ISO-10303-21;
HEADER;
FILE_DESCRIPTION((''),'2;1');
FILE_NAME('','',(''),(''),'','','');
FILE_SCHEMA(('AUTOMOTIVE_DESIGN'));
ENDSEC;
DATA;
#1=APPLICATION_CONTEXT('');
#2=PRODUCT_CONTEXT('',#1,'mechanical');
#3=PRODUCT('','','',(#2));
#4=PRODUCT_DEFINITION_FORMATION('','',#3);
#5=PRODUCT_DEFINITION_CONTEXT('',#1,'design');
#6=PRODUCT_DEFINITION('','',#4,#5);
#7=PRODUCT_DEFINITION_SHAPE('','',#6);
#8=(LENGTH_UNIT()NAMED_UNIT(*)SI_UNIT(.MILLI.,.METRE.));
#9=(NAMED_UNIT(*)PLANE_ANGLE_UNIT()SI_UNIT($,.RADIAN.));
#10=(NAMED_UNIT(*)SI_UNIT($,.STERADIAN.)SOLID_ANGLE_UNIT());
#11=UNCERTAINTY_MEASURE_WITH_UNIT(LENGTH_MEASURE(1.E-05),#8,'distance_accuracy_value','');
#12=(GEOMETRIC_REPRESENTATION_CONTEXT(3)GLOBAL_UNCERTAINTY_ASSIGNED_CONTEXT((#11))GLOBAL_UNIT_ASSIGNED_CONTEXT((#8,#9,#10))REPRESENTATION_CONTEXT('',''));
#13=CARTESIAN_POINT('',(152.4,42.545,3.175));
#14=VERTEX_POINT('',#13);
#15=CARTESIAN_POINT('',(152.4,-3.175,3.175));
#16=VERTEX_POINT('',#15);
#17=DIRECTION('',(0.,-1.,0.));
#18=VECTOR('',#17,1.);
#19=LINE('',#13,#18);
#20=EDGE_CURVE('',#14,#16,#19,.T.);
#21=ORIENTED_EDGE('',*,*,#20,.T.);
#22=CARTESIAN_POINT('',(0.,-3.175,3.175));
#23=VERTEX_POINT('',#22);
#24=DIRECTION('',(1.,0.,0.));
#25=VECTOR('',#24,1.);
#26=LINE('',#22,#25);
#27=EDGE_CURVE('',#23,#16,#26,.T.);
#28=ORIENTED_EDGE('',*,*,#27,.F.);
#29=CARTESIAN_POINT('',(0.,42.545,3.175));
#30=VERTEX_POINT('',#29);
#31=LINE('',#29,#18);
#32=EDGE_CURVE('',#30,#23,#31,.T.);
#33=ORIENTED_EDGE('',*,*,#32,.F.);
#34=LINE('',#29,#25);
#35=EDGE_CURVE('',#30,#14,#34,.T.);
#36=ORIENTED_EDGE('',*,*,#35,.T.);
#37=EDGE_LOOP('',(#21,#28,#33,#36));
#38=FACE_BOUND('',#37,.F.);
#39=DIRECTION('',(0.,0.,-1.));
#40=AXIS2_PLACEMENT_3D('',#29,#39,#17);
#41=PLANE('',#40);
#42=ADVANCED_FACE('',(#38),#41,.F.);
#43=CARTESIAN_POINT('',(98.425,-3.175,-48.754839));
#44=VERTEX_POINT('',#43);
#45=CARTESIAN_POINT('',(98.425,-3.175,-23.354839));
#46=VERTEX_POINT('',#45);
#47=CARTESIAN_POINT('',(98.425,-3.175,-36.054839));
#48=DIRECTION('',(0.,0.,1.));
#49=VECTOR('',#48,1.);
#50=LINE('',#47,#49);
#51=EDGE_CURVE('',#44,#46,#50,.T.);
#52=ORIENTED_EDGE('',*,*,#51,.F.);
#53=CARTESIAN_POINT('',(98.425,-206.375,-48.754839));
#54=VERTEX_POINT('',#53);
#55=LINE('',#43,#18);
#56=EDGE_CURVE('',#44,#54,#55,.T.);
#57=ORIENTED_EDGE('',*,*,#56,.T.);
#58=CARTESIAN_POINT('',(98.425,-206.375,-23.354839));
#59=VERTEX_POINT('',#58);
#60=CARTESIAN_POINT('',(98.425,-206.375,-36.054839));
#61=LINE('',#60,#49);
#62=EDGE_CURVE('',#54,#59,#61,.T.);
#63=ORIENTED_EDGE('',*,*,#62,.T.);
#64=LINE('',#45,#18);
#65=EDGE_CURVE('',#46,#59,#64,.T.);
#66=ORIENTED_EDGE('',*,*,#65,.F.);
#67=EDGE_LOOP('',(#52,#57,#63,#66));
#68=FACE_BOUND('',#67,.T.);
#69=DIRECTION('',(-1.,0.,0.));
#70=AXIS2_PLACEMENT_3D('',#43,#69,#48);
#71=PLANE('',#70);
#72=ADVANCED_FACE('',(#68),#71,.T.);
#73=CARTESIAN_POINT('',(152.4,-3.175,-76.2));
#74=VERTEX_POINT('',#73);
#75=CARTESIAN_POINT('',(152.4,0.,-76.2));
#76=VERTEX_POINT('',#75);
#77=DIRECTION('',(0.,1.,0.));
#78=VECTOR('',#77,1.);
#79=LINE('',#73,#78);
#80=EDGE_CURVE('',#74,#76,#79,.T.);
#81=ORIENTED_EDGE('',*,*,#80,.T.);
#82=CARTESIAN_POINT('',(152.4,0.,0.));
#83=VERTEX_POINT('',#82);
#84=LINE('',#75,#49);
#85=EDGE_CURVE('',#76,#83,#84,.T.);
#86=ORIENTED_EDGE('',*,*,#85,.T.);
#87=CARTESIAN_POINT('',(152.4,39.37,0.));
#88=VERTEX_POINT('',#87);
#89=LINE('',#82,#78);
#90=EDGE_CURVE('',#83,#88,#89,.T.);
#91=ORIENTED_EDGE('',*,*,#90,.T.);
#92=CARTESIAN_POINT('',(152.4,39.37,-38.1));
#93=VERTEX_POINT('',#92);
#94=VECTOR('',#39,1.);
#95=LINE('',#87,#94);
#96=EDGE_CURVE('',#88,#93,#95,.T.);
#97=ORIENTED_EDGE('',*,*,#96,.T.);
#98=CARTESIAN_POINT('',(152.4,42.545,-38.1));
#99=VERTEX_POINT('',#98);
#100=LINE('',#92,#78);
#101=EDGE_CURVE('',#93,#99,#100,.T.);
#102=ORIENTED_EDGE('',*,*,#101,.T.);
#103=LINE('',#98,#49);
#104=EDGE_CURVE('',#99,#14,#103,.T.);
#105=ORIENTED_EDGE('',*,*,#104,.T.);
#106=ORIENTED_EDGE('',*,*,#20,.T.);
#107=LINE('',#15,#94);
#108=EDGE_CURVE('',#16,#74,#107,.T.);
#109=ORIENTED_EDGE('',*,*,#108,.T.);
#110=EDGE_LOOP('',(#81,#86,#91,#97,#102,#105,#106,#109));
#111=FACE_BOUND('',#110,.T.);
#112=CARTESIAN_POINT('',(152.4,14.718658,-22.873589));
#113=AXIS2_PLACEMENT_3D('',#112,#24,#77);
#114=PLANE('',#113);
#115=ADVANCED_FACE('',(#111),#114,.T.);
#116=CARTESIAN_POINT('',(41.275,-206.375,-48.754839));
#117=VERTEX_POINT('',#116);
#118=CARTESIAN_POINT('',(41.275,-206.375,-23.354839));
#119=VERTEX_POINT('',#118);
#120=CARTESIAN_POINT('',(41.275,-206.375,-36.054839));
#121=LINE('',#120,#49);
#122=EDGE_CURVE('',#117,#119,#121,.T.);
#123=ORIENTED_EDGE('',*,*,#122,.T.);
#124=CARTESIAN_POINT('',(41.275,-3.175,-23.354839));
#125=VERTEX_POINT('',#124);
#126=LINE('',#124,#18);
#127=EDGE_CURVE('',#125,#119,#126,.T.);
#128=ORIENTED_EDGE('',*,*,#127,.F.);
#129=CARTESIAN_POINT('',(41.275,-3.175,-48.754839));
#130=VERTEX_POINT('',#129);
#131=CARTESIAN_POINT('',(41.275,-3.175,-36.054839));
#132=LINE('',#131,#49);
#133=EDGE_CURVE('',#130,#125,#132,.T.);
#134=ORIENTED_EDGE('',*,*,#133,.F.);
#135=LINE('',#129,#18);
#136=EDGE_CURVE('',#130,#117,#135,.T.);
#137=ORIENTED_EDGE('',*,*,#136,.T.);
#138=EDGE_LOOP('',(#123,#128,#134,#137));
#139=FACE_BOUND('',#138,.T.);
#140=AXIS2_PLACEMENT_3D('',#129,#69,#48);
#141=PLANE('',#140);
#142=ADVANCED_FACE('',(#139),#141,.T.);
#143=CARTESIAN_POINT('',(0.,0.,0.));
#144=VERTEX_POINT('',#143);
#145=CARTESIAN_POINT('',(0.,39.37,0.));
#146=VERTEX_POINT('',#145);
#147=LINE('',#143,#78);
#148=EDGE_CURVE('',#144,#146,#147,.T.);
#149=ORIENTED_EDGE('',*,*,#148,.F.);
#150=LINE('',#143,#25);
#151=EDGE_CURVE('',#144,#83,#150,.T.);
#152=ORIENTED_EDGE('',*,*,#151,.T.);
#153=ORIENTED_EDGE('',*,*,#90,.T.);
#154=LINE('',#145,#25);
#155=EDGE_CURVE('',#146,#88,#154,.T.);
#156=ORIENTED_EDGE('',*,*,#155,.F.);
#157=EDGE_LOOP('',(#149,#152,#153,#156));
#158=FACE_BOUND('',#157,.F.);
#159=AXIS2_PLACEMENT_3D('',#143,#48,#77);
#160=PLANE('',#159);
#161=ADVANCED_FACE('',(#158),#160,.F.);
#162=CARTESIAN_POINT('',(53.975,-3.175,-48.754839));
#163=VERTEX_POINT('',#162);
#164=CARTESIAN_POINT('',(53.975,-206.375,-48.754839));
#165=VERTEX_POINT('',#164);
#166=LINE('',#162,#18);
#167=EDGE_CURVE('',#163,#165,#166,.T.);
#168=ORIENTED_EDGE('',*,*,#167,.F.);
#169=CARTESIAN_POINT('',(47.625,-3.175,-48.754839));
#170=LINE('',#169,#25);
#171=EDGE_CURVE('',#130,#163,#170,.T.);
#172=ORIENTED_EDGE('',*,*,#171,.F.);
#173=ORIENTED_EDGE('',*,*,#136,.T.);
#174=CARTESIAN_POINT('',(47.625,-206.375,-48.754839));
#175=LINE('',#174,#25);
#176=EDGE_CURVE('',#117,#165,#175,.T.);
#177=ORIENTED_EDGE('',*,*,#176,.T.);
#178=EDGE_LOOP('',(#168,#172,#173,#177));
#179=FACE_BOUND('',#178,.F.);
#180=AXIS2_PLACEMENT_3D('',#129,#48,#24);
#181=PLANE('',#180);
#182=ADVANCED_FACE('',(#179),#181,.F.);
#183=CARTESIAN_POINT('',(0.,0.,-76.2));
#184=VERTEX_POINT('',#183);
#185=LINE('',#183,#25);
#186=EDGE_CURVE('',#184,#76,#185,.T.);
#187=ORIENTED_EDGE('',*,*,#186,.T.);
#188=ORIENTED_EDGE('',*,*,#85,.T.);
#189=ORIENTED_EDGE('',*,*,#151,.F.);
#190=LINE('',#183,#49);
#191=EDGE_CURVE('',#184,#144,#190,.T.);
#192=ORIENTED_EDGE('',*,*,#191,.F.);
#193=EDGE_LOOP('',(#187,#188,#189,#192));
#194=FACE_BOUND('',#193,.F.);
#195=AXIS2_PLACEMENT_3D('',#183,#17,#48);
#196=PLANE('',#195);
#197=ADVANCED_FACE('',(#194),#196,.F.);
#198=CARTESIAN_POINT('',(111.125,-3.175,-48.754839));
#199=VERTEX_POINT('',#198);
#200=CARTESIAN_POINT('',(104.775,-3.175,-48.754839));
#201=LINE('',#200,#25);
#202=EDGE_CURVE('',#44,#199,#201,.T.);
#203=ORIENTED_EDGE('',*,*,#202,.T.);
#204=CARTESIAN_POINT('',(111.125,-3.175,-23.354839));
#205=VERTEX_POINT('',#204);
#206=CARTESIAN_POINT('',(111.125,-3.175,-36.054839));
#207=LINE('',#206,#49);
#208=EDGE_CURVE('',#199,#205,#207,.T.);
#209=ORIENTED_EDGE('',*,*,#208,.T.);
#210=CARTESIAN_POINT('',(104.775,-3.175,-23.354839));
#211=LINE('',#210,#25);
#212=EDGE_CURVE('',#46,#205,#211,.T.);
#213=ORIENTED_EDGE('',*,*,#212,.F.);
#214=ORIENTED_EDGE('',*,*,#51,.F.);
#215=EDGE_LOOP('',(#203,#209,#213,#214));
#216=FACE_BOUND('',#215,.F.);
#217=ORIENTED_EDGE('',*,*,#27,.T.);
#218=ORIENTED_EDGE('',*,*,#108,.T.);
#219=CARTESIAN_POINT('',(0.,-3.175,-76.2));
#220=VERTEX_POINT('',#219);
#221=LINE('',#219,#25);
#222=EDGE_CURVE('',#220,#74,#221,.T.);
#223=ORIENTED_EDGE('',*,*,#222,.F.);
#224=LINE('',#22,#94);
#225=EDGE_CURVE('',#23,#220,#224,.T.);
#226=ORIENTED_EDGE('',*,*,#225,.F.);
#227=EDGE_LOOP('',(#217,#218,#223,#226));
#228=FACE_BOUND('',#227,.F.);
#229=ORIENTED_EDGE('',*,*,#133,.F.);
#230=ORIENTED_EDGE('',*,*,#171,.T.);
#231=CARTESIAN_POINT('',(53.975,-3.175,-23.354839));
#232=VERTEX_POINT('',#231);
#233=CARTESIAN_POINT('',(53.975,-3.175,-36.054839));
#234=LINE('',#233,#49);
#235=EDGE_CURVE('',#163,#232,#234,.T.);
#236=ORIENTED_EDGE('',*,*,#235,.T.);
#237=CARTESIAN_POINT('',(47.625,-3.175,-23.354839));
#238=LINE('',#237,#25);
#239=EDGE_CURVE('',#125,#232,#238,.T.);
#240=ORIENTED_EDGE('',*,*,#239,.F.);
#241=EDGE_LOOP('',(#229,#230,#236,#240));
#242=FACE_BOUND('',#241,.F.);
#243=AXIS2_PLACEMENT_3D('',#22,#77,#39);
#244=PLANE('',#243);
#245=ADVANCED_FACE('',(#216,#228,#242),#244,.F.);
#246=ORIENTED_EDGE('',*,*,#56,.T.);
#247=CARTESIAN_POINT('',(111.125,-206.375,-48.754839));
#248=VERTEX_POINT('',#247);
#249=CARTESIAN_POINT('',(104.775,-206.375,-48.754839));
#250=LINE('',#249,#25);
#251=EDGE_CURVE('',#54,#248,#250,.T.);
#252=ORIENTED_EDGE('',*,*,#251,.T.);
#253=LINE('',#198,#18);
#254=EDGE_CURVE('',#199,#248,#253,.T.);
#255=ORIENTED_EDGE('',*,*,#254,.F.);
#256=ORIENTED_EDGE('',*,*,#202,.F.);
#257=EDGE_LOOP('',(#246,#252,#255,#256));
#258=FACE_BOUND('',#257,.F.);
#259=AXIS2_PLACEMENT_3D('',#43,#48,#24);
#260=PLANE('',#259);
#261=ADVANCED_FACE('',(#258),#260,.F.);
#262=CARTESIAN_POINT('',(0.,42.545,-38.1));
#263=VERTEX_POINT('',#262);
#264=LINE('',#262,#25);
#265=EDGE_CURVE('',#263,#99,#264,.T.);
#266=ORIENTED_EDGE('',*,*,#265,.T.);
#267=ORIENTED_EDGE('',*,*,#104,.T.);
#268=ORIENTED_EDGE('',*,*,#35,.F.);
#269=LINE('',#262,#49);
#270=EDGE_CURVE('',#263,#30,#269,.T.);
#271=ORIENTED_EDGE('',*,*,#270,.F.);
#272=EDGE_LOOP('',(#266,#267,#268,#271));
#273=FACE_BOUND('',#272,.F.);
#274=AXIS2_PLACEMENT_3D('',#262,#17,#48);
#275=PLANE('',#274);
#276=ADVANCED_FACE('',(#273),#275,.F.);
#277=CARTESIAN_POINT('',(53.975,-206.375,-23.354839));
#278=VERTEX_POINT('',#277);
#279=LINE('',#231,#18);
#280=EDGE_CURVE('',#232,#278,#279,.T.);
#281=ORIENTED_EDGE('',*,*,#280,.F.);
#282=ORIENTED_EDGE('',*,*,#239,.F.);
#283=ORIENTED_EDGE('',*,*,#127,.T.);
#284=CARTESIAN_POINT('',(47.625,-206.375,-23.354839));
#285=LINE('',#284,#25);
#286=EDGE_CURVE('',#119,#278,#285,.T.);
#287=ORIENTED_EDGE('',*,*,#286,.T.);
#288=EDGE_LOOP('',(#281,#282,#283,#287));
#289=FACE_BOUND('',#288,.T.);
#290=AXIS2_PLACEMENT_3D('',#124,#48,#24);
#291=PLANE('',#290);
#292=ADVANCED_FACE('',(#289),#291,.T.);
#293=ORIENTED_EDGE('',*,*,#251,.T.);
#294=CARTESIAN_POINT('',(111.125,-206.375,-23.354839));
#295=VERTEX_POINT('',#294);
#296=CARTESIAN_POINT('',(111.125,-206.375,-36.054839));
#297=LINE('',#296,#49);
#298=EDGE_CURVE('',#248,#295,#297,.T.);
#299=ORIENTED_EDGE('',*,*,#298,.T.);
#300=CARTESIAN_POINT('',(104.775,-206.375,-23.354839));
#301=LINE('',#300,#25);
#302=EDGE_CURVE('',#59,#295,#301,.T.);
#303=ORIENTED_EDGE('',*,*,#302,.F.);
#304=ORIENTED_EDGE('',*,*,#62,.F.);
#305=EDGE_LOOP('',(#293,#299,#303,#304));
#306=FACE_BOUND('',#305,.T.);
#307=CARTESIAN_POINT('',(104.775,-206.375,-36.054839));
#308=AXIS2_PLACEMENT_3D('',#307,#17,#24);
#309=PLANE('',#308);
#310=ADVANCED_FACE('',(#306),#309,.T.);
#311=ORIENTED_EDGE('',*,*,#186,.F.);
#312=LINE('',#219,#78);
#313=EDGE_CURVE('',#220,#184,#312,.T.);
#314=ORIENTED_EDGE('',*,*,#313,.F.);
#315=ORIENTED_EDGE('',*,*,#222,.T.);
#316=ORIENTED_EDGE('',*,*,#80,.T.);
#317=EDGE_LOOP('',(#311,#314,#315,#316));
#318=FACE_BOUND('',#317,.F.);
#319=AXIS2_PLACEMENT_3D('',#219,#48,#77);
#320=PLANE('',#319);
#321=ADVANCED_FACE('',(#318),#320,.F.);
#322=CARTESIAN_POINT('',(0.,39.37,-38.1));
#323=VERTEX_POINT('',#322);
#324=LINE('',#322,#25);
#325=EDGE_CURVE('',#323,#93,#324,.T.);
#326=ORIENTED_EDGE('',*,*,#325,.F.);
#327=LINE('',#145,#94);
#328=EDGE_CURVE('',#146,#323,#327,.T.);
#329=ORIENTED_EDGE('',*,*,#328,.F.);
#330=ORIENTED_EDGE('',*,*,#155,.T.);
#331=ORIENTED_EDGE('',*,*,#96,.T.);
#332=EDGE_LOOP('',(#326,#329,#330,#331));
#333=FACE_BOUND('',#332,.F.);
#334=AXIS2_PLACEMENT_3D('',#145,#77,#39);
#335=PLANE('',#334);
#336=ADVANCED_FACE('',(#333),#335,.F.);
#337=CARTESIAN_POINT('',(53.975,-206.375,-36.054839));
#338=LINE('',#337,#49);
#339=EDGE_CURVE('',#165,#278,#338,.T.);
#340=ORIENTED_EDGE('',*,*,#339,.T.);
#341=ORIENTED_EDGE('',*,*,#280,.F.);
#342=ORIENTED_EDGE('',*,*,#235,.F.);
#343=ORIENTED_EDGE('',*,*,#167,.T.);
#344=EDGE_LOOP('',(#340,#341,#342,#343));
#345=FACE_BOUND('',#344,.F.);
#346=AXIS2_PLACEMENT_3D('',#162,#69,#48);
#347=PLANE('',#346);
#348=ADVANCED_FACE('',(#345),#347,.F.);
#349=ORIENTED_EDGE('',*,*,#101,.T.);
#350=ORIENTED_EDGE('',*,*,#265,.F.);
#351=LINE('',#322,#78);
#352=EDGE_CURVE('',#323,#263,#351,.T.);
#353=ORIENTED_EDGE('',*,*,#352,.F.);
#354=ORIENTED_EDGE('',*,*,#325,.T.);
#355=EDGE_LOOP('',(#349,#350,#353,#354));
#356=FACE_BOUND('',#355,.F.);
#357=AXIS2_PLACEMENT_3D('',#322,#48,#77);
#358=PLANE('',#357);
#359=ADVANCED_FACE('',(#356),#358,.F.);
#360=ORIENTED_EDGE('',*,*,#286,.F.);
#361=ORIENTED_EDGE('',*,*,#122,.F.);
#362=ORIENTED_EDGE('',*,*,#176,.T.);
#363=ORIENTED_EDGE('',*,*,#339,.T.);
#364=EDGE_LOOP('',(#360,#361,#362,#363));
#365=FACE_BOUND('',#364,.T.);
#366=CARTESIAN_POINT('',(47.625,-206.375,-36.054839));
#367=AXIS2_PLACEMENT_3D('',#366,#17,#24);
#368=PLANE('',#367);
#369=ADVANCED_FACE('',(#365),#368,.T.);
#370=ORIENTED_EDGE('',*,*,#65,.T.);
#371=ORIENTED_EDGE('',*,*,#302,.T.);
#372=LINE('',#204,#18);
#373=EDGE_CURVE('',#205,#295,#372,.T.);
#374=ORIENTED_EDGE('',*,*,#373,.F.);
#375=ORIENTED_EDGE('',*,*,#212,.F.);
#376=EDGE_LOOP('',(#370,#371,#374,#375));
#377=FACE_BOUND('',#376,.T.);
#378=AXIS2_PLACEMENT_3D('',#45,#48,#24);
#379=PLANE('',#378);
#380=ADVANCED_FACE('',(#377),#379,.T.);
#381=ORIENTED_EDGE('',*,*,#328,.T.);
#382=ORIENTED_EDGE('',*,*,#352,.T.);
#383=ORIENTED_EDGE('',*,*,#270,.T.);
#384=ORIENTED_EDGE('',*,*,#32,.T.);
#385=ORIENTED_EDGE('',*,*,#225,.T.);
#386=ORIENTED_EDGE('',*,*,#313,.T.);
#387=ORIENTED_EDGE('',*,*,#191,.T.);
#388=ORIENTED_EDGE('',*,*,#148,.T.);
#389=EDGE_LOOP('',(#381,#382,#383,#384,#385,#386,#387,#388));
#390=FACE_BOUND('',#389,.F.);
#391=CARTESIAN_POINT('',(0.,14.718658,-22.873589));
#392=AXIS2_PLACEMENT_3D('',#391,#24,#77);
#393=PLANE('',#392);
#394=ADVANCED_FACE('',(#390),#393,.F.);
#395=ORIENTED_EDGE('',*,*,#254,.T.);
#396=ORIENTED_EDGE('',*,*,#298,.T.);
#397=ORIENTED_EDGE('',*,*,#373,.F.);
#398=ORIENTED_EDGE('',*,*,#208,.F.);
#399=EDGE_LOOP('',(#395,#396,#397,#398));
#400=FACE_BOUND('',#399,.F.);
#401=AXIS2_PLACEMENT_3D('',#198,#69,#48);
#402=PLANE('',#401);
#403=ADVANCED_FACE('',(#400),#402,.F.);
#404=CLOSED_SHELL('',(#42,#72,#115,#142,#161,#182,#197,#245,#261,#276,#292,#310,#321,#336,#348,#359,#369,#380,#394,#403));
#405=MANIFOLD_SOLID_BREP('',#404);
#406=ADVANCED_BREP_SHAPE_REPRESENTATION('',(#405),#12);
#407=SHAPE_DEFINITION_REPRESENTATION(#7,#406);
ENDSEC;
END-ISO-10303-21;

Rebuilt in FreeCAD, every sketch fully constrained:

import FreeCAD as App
import Part
import Sketcher
Q = App.Units.Quantity


def add_polygon(sketch, points):
    """Adds a closed chain of lines whose ends are joined by coincident constraints."""
    first, n = sketch.GeometryCount, len(points)
    for a, b in zip(points, points[1:] + points[:1]):
        sketch.addGeometry(Part.LineSegment(App.Vector(*a, 0), App.Vector(*b, 0)), False)
    for i in range(n):
        sketch.addConstraint(Sketcher.Constraint("Coincident", first + i, 2, first + (i + 1) % n, 1))

doc = App.newDocument("Part")
params = doc.addObject("Spreadsheet::Sheet", "Params")
for row, (alias, value) in enumerate([
    ("sketch1_height", "3 in"),
    ("sketch1_width", "1.8 in"),
    ("sketch1_height2", "1.5 in"),
    ("sketch1_width2", "1.55 in"),
    ("sketch1_height3", "1.625 in"),
    ("pad1_length", "6 in"),
    ("sketch2_height", "1 in"),
    ("sketch2_width", "0.5 in"),
    ("pad2_length", "8 in"),
], start=1):
    params.set(f"A{row}", alias)
    params.set(f"B{row}", "=" + value)
    params.setAlias(f"B{row}", alias)

body = doc.addObject("PartDesign::Body", "Body")

# Sketch on YZ plane
sketch1 = doc.addObject("Sketcher::SketchObject", "Sketch")
body.addObject(sketch1)
sketch1.AttachmentSupport = (doc.YZ_Plane, [""])
sketch1.MapMode = "FlatFace"
add_polygon(sketch1, [(-3.2, -76.2), (0, -76.2), (0, 0), (39.4, 0), (39.4, -38.1), (42.5, -38.1), (42.5, 3.2), (-3.2, 3.2)])  # lines 0-7
sketch1.addConstraint([
    Sketcher.Constraint("Horizontal", 0),
    Sketcher.Constraint("Vertical", 1),
    Sketcher.Constraint("Horizontal", 2),
    Sketcher.Constraint("Vertical", 3),
    Sketcher.Constraint("Horizontal", 4),
    Sketcher.Constraint("Vertical", 5),
    Sketcher.Constraint("Horizontal", 6),
    Sketcher.Constraint("Vertical", 7),
    Sketcher.Constraint("Coincident", 1, 2, -1, 1),
    Sketcher.Constraint("Equal", 0, 4),
    Sketcher.Constraint("DistanceY", 1, 1, 1, 2, Q("3 in")),
    Sketcher.Constraint("DistanceX", 6, 2, 6, 1, Q("1.8 in")),
    Sketcher.Constraint("DistanceY", 3, 2, 3, 1, Q("1.5 in")),
    Sketcher.Constraint("DistanceX", 2, 1, 2, 2, Q("1.55 in")),
    Sketcher.Constraint("DistanceY", 5, 1, 5, 2, Q("1.625 in")),
])
sketch1.setExpression("Constraints[18]", "Params.sketch1_height")
sketch1.setExpression("Constraints[19]", "Params.sketch1_width")
sketch1.setExpression("Constraints[20]", "Params.sketch1_height2")
sketch1.setExpression("Constraints[21]", "Params.sketch1_width2")
sketch1.setExpression("Constraints[22]", "Params.sketch1_height3")
pad1 = doc.addObject("PartDesign::Pad", "Pad")
body.addObject(pad1)
pad1.Profile = sketch1
pad1.setExpression("Length", "Params.pad1_length")

# Sketch on XZ plane
sketch2 = doc.addObject("Sketcher::SketchObject", "Sketch001")
body.addObject(sketch2)
sketch2.AttachmentSupport = (doc.XZ_Plane, [""])
sketch2.MapMode = "FlatFace"
sketch2.AttachmentOffset = App.Placement(App.Vector(0, 0, 0.125 * 25.4), App.Rotation())
add_polygon(sketch2, [(41, -23), (41, -49), (54, -49), (54, -23)])  # lines 0-3
add_polygon(sketch2, [(98, -23), (98, -49), (111, -49), (111, -23)])  # lines 4-7
sketch2.addConstraint([
    Sketcher.Constraint("Vertical", 0),
    Sketcher.Constraint("Horizontal", 1),
    Sketcher.Constraint("Vertical", 2),
    Sketcher.Constraint("Horizontal", 3),
    Sketcher.Constraint("Vertical", 4),
    Sketcher.Constraint("Horizontal", 5),
    Sketcher.Constraint("Vertical", 6),
    Sketcher.Constraint("Horizontal", 7),
    Sketcher.Constraint("Horizontal", 1, 2, 4, 2),
    Sketcher.Constraint("Horizontal", 3, 2, 6, 2),
    Sketcher.Constraint("Equal", 3, 5),
    Sketcher.Constraint("DistanceY", 0, 2, 0, 1, Q("1 in")),
    Sketcher.Constraint("DistanceX", 1, 1, 1, 2, Q("0.5 in")),
    Sketcher.Constraint("DistanceX", 1, 2, 4, 2, Q("1.75 in")),
    Sketcher.Constraint("DistanceX", -1, 1, 0, 2, Q("1.625 in")),
    Sketcher.Constraint("DistanceY", 0, 2, -1, 1, Q("48.754839 mm")),
])
sketch2.setExpression("Constraints[19]", "Params.sketch2_height")
sketch2.setExpression("Constraints[20]", "Params.sketch2_width")
pad2 = doc.addObject("PartDesign::Pad", "Pad001")
body.addObject(pad2)
pad2.Profile = sketch2
pad2.setExpression("Length", "Params.pad2_length")

doc.recompute()
